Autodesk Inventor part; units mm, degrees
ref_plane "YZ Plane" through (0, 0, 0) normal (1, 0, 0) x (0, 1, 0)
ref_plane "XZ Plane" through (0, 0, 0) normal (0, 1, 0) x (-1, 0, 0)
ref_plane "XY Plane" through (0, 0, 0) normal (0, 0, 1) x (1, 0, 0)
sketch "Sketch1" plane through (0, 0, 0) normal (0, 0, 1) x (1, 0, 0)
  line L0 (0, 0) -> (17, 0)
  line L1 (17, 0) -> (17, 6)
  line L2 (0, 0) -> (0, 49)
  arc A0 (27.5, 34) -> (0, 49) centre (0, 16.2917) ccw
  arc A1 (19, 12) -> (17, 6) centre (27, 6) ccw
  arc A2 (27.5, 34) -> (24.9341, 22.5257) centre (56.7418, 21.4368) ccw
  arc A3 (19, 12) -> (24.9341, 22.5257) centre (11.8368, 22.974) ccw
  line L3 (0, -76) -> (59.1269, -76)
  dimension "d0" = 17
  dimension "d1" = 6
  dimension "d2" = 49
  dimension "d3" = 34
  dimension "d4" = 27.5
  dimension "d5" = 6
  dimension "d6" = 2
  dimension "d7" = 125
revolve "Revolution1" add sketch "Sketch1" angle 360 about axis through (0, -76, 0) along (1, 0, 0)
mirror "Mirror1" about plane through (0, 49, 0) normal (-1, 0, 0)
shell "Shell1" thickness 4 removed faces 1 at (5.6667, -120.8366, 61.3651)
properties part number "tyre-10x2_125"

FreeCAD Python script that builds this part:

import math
import FreeCAD as App
import Part
import Sketcher
from FreeCAD import Vector


def faces_at(feature, points):
    """Names of the faces that lie closest to the given points."""
    faces = feature.Shape.Faces
    near = lambda p: min(range(len(faces)), key=lambda i: faces[i].distToShape(Part.Vertex(*p))[0])
    return sorted({f"Face{near(p) + 1}" for p in points})

doc = App.newDocument("Part")
body = doc.addObject("PartDesign::Body", "Body")

# Sketch on XY plane
sketch1 = doc.addObject("Sketcher::SketchObject", "Sketch")
body.addObject(sketch1)
sketch1.AttachmentSupport = (doc.XY_Plane, [""])
sketch1.MapMode = "FlatFace"
sketch1.addGeometry([
    Part.LineSegment(Vector(0, 49, 0), Vector(0, 0, 0)),  # 0
    Part.LineSegment(Vector(0, 0, 0), Vector(17, 0, 0)),  # 1
    Part.LineSegment(Vector(17, 0, 0), Vector(17, 6, 0)),  # 2
    Part.ArcOfCircle(Part.Circle(Vector(27, 6, 0), Vector(0, 0, 1), 10), math.radians(143.130102), math.radians(180)),  # 3
    Part.ArcOfCircle(Part.Circle(Vector(11.8368, 22.974, 0), Vector(0, 0, 1), 13.104965), math.radians(-56.865794), math.radians(-1.960379)),  # 4
    Part.ArcOfCircle(Part.Circle(Vector(56.7418, 21.4368, 0), Vector(0, 0, 1), 31.826355), math.radians(156.750114), math.radians(178.039311)),  # 5
    Part.ArcOfCircle(Part.Circle(Vector(0, 16.2917, 0), Vector(0, 0, 1), 32.708315), math.radians(32.779032), math.radians(90)),  # 6
], False)
sketch1.addGeometry(Part.LineSegment(Vector(0, -76, 0), Vector(56.7418, -76, 0)), True)  # axis
sketch1.addConstraint([
    Sketcher.Constraint("Coincident", 0, 2, 1, 1),
    Sketcher.Constraint("Coincident", 1, 2, 2, 1),
    Sketcher.Constraint("Tangent", 2, 2, 3, 2),
    Sketcher.Constraint("Coincident", 3, 1, 4, 1),
    Sketcher.Constraint("Tangent", 4, 2, 5, 2),
    Sketcher.Constraint("Coincident", 5, 1, 6, 1),
    Sketcher.Constraint("Coincident", 6, 2, 0, 1),
    Sketcher.Constraint("Vertical", 0),
    Sketcher.Constraint("Horizontal", 1),
    Sketcher.Constraint("Vertical", 2),
    Sketcher.Constraint("Horizontal", 7),
    Sketcher.Constraint("Coincident", 0, 2, -1, 1),
    Sketcher.Constraint("PointOnObject", 6, 3, -2),
    Sketcher.Constraint("PointOnObject", 7, 1, -2),
    Sketcher.Constraint("Vertical", 5, 3, 7, 2),
    Sketcher.Constraint("DistanceX", 1, 1, 1, 2, 17.0),
    Sketcher.Constraint("DistanceY", 0, 2, 0, 1, 49.0),
    Sketcher.Constraint("DistanceY", 2, 1, 2, 2, 6.0),
    Sketcher.Constraint("DistanceY", -1, 1, 5, 1, 34.0),
    Sketcher.Constraint("Radius", 3, 10.0),
    Sketcher.Constraint("DistanceX", 2, 2, 3, 1, 2.0),
    Sketcher.Constraint("DistanceX", -1, 1, 5, 1, 27.5),
    Sketcher.Constraint("DistanceY", 7, 1, -1, 1, 76.0),
    Sketcher.Constraint("Radius", 4, 13.105),
    Sketcher.Constraint("Radius", 5, 31.8264),
    Sketcher.Constraint("DistanceX", 7, 1, 7, 2, 56.7418),
])
revolution = doc.addObject("PartDesign::Revolution", "Revolution")
body.addObject(revolution)
revolution.Profile = sketch1
revolution.ReferenceAxis = (sketch1, ["Axis0"])
revolution.Angle = 360
doc.recompute()

mirrored = doc.addObject("PartDesign::Mirrored", "Mirrored")
body.addObject(mirrored)
mirrored.TransformMode = "Transform body"
mirrored.MirrorPlane = (doc.YZ_Plane, [""])
body.Tip = mirrored
doc.recompute()

thickness = doc.addObject("PartDesign::Thickness", "Thickness")
body.addObject(thickness)
thickness.Base = (mirrored, faces_at(mirrored, [(5.667, -120.837, 61.365)]))
thickness.Value = 4
thickness.Reversed = True
thickness.Join = "Intersection"

doc.recompute()
